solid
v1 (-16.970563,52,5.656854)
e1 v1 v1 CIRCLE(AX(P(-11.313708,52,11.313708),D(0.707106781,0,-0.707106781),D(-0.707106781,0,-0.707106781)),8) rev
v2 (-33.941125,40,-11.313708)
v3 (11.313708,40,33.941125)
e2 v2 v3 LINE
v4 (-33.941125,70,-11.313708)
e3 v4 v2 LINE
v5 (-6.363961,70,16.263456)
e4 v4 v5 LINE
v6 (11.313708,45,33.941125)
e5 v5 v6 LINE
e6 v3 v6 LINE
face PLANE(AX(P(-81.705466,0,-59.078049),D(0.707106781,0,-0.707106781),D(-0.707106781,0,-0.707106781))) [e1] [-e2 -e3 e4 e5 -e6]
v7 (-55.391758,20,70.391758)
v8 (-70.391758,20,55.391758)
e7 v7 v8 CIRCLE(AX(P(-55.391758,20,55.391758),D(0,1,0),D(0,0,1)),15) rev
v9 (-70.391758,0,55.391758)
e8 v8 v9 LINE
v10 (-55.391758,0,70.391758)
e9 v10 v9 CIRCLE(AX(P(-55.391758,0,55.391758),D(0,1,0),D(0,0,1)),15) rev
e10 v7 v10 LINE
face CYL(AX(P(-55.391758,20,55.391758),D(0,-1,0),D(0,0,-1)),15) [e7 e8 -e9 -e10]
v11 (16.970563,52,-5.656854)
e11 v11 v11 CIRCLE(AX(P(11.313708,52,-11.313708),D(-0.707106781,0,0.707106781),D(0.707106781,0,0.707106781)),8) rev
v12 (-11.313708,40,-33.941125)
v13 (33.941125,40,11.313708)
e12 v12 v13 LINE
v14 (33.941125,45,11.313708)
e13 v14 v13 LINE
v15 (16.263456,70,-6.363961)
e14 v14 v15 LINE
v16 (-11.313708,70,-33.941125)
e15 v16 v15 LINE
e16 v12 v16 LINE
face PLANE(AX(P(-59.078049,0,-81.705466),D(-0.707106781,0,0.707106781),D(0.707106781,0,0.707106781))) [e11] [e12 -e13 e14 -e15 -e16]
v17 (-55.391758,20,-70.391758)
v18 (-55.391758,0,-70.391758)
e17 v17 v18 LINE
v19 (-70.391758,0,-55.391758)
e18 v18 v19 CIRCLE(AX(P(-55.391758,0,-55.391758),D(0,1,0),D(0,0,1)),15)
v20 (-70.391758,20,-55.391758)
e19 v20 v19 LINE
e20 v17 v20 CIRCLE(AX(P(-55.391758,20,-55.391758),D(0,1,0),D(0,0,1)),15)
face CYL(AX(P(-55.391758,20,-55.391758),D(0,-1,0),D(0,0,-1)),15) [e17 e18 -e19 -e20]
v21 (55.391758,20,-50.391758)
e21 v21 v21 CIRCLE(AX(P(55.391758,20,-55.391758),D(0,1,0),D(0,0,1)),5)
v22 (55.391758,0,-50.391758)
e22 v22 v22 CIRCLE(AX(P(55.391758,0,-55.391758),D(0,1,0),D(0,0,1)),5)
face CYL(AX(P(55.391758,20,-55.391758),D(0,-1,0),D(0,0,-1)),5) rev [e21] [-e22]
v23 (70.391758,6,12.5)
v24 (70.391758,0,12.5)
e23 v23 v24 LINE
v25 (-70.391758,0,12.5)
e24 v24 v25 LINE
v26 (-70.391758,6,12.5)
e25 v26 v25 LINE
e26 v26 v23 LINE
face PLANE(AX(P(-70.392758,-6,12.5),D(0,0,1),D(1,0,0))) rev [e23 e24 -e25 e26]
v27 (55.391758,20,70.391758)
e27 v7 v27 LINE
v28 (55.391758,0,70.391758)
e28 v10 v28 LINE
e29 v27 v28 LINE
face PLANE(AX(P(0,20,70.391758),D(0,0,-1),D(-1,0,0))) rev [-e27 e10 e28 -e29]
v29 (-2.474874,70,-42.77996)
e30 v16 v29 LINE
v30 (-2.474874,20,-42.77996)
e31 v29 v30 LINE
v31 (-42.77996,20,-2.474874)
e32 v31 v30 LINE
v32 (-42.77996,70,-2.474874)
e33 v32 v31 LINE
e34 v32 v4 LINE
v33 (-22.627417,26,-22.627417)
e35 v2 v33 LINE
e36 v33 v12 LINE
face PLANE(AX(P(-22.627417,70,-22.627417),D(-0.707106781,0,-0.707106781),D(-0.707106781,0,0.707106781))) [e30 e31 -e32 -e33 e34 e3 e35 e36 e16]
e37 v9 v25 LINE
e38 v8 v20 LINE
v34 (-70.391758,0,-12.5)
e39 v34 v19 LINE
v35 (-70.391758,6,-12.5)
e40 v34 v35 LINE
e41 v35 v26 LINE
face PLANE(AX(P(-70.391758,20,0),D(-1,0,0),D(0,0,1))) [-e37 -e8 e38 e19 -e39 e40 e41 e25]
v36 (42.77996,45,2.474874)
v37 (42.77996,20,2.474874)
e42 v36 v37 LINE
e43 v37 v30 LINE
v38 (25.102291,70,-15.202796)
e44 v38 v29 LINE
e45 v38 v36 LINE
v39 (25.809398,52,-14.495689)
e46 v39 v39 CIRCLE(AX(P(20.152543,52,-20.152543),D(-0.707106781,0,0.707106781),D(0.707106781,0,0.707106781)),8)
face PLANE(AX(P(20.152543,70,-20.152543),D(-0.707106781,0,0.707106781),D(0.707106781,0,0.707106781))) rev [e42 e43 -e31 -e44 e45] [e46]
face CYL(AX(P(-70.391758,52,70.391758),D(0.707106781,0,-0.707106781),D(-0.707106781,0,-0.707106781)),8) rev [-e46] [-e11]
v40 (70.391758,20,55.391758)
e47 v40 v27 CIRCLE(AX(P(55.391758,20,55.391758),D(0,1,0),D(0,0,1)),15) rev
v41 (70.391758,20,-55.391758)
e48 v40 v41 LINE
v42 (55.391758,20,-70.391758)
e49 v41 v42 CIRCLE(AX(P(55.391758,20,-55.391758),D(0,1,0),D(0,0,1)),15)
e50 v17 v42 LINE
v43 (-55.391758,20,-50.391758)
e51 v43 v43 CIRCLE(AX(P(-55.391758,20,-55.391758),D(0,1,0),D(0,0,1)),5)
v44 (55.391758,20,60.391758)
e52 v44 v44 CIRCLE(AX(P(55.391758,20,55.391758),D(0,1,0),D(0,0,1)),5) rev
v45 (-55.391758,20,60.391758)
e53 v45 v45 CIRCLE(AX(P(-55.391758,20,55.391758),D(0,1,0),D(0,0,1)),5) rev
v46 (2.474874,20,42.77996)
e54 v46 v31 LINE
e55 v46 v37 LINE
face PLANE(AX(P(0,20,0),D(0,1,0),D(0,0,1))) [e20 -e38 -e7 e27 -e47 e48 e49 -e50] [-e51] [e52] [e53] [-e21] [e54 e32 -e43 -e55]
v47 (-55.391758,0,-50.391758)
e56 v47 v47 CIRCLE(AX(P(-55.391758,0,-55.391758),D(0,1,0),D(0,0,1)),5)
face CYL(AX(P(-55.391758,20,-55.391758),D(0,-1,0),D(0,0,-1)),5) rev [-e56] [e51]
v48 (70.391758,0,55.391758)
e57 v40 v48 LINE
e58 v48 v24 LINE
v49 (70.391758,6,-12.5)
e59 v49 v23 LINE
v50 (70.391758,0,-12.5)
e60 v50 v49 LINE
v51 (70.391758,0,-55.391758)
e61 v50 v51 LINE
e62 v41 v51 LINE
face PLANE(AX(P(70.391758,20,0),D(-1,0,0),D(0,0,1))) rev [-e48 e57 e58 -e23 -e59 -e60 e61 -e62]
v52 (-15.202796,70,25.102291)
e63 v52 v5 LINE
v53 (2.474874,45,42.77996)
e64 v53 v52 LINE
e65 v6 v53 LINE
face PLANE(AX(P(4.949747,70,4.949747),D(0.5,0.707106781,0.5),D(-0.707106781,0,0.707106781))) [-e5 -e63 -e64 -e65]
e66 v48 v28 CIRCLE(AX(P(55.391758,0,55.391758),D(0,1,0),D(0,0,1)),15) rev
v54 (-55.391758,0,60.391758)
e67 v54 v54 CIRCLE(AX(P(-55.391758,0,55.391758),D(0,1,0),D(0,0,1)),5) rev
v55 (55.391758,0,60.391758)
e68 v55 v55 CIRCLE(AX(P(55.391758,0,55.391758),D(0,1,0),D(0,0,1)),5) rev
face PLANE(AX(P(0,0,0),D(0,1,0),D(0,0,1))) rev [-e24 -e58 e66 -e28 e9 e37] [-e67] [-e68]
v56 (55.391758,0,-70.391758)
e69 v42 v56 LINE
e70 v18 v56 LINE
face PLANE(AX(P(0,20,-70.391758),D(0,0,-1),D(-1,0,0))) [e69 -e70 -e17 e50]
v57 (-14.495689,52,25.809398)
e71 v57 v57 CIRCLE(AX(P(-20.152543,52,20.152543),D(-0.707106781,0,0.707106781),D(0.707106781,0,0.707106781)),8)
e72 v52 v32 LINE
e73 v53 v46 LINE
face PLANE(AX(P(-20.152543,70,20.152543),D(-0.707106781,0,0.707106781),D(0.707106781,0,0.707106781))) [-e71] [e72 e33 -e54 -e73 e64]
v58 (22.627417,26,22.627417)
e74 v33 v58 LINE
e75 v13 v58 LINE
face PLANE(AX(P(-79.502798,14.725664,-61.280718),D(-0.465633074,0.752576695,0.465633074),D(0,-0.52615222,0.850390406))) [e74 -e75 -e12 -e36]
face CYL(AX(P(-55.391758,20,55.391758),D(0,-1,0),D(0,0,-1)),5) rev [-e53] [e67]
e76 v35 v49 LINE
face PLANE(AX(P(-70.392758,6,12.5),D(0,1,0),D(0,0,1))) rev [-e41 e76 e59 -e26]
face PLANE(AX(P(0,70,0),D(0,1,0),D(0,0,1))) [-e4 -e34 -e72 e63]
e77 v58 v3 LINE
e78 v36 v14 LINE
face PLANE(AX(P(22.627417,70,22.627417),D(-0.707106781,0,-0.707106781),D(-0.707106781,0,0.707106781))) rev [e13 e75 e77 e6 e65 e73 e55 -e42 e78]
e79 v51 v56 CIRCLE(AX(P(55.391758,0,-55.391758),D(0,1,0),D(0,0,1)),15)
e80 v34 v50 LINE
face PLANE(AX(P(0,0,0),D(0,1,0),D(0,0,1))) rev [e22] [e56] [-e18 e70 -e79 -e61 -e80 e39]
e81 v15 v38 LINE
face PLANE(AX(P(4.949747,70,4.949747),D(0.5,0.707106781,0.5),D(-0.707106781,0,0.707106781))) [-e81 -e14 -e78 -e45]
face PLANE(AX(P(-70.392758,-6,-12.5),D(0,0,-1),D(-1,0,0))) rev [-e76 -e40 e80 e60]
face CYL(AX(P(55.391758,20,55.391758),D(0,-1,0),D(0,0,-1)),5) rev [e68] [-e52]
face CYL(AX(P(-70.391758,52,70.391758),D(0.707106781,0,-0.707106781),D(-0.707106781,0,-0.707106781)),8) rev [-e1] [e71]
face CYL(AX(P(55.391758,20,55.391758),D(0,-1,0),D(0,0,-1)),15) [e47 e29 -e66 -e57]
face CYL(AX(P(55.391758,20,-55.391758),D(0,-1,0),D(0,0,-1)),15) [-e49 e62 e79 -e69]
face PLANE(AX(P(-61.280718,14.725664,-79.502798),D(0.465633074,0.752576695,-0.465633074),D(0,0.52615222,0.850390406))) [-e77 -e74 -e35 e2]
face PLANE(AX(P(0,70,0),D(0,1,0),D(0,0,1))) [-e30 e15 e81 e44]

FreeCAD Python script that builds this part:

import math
import FreeCAD as App
import Part
import Sketcher
from FreeCAD import Vector
Q = App.Units.Quantity


def edges_at(feature, points):
    """Names of the edges that pass closest to the given points."""
    edges = feature.Shape.Edges
    near = lambda p: min(range(len(edges)), key=lambda i: edges[i].distToShape(Part.Vertex(*p))[0])
    return sorted({f"Edge{near(p) + 1}" for p in points})

doc = App.newDocument("Part")
body = doc.addObject("PartDesign::Body", "Body")

sketch1 = body.newObject("Sketcher::SketchObject", "Sketch")
sketch1.AttachmentSupport = (doc.getObject("XZ_Plane"), [""])
sketch1.MapMode = "FlatFace"
sketch1.addGeometry([
    Part.ArcOfCircle(Part.Circle(Vector(-55, 55, 0), Vector(0, 0, 1), 15), math.radians(90), math.radians(180)),
    Part.LineSegment(Vector(-55, 70, 0), Vector(55, 70, 0)),
    Part.ArcOfCircle(Part.Circle(Vector(55, 55, 0), Vector(0, 0, 1), 15), math.radians(0), math.radians(90)),
    Part.LineSegment(Vector(70, 55, 0), Vector(70, -55, 0)),
    Part.ArcOfCircle(Part.Circle(Vector(55, -55, 0), Vector(0, 0, 1), 15), math.radians(-90), math.radians(0)),
    Part.LineSegment(Vector(55, -70, 0), Vector(-55, -70, 0)),
    Part.ArcOfCircle(Part.Circle(Vector(-55, -55, 0), Vector(0, 0, 1), 15), math.radians(180), math.radians(270)),
    Part.LineSegment(Vector(-70, -55, 0), Vector(-70, 55, 0)),
    Part.Circle(Vector(-55, 55, 0), Vector(0, 0, 1), 5),
    Part.Circle(Vector(55, 55, 0), Vector(0, 0, 1), 5),
    Part.Circle(Vector(-55, -55, 0), Vector(0, 0, 1), 5),
    Part.LineSegment(Vector(-2, -43, 0), Vector(43, 2, 0)),
    Part.LineSegment(Vector(43, 2, 0), Vector(2, 43, 0)),
    Part.LineSegment(Vector(2, 43, 0), Vector(-43, -2, 0)),
    Part.LineSegment(Vector(-43, -2, 0), Vector(-2, -43, 0)),
    Part.Circle(Vector(55, -55, 0), Vector(0, 0, 1), 5),
], False)
sketch1.addConstraint([
    Sketcher.Constraint("Tangent", 0, 1, 1, 1),
    Sketcher.Constraint("Tangent", 1, 2, 2, 2),
    Sketcher.Constraint("Tangent", 2, 1, 3, 1),
    Sketcher.Constraint("Tangent", 3, 2, 4, 2),
    Sketcher.Constraint("Tangent", 4, 1, 5, 1),
    Sketcher.Constraint("Tangent", 5, 2, 6, 2),
    Sketcher.Constraint("Tangent", 6, 1, 7, 1),
    Sketcher.Constraint("Tangent", 7, 2, 0, 2),
    Sketcher.Constraint("Coincident", 11, 2, 12, 1),
    Sketcher.Constraint("Coincident", 12, 2, 13, 1),
    Sketcher.Constraint("Coincident", 13, 2, 14, 1),
    Sketcher.Constraint("Coincident", 14, 2, 11, 1),
    Sketcher.Constraint("Horizontal", 1),
    Sketcher.Constraint("Vertical", 3),
    Sketcher.Constraint("Horizontal", 5),
    Sketcher.Constraint("Vertical", 7),
    Sketcher.Constraint("Coincident", 8, 3, 0, 3),
    Sketcher.Constraint("Coincident", 9, 3, 2, 3),
    Sketcher.Constraint("Coincident", 10, 3, 6, 3),
    Sketcher.Constraint("Coincident", 15, 3, 4, 3),
    Sketcher.Constraint("Equal", 0, 2),
    Sketcher.Constraint("Equal", 2, 4),
    Sketcher.Constraint("Equal", 4, 6),
    Sketcher.Constraint("Equal", 8, 9),
    Sketcher.Constraint("Equal", 9, 10),
    Sketcher.Constraint("Equal", 10, 15),
    Sketcher.Constraint("Symmetric", 0, 3, 4, 3, -1, 1),
    Sketcher.Constraint("Symmetric", 11, 2, 13, 2, -1, 1),
    Sketcher.Constraint("Symmetric", 12, 2, 14, 2, -1, 1),
    Sketcher.Constraint("Perpendicular", 11, 12),
    Sketcher.Constraint("Equal", 5, 3),
    Sketcher.Constraint("Diameter", 8, 10.0),
    Sketcher.Constraint("Radius", 0, 15.0),
    Sketcher.Constraint("Angle", 11, Q("45 deg")),
    Sketcher.Constraint("Distance", 11, 64.0),
    Sketcher.Constraint("Distance", 12, 57.0),
    Sketcher.Constraint("DistanceX", 1, 1, 1, 2, 110.783516),
])
pad1 = body.newObject("PartDesign::Pad", "Pad")
pad1.Profile = sketch1
pad1.Length = 20
pad1.Reversed = True

sketch2 = body.newObject("Sketcher::SketchObject", "Sketch001")
sketch2.AttachmentSupport = (doc.getObject("XZ_Plane"), [""])
sketch2.MapMode = "FlatFace"
sketch2.addGeometry([
    Part.LineSegment(Vector(-2, -43, 0), Vector(-43, -2, 0)),
    Part.LineSegment(Vector(-43, -2, 0), Vector(2, 43, 0)),
    Part.LineSegment(Vector(2, 43, 0), Vector(43, 2, 0)),
    Part.LineSegment(Vector(43, 2, 0), Vector(-2, -43, 0)),
], False)
sketch2.addConstraint([
    Sketcher.Constraint("Coincident", 0, 2, 1, 1),
    Sketcher.Constraint("Coincident", 1, 2, 2, 1),
    Sketcher.Constraint("Coincident", 2, 2, 3, 1),
    Sketcher.Constraint("Coincident", 3, 2, 0, 1),
    Sketcher.Constraint("Symmetric", 0, 2, 2, 2, -1, 1),
    Sketcher.Constraint("Symmetric", 1, 2, 3, 2, -1, 1),
    Sketcher.Constraint("Perpendicular", 0, 1),
    Sketcher.Constraint("Angle", 0, Q("135 deg")),
    Sketcher.Constraint("Distance", 0, 57.0),
    Sketcher.Constraint("Distance", 1, 64.0),
])
pad2 = body.newObject("PartDesign::Pad", "Pad001")
pad2.Profile = sketch2
pad2.Length = 70
pad2.Reversed = True

sketch3 = body.newObject("Sketcher::SketchObject", "Sketch002")
sketch3.Placement = App.Placement(Vector(20.152543, 0, -20.152543), App.Rotation(Vector(-0.707106781, 0, -0.707106781), Vector(0, 0.999999999, 0), Vector(0.707106781, 0, -0.707106781), "ZXY"))
sketch3.addGeometry(Part.Circle(Vector(0, 52, 0), Vector(0, 0, 1), 8), False)
sketch3.addConstraint([
    Sketcher.Constraint("PointOnObject", 0, 3, -2),
    Sketcher.Constraint("Diameter", 0, 16.0),
    Sketcher.Constraint("DistanceY", -1, 1, 0, 3, 52.0),
])
pocket1 = body.newObject("PartDesign::Pocket", "Pocket")
pocket1.Profile = sketch3
pocket1.Type = "ThroughAll"
pocket1.Midplane = True

sketch4 = body.newObject("Sketcher::SketchObject", "Sketch003")
sketch4.Placement = App.Placement(Vector(22.627417, 0, 22.627417), App.Rotation(Vector(0.707106781, 0, -0.707106781), Vector(0, 0.999999999, 0), Vector(0.707106781, 0, 0.707106781), "ZXY"))
sketch4.addGeometry([
    Part.LineSegment(Vector(16, 40, 0), Vector(16, 70, 0)),
    Part.LineSegment(Vector(16, 70, 0), Vector(-16, 70, 0)),
    Part.LineSegment(Vector(-16, 70, 0), Vector(-16, 40, 0)),
    Part.LineSegment(Vector(-16, 40, 0), Vector(0, 26, 0)),
    Part.LineSegment(Vector(0, 26, 0), Vector(16, 40, 0)),
], False)
sketch4.addConstraint([
    Sketcher.Constraint("Coincident", 0, 2, 1, 1),
    Sketcher.Constraint("Coincident", 1, 2, 2, 1),
    Sketcher.Constraint("Coincident", 2, 2, 3, 1),
    Sketcher.Constraint("Coincident", 3, 2, 4, 1),
    Sketcher.Constraint("Coincident", 4, 2, 0, 1),
    Sketcher.Constraint("Vertical", 0),
    Sketcher.Constraint("Horizontal", 1),
    Sketcher.Constraint("Vertical", 2),
    Sketcher.Constraint("Symmetric", 2, 2, 4, 2, -2),
    Sketcher.Constraint("PointOnObject", 3, 2, -2),
    Sketcher.Constraint("DistanceX", 1, 2, 1, 1, 32.0),
    Sketcher.Constraint("DistanceY", 0, 1, 0, 2, 30.0),
    Sketcher.Constraint("DistanceY", -1, 1, 0, 2, 70.0),
    Sketcher.Constraint("DistanceY", -1, 1, 3, 2, 26.0),
])
pocket2 = body.newObject("PartDesign::Pocket", "Pocket001")
pocket2.Profile = sketch4
pocket2.Type = "ThroughAll"
doc.recompute()

chamfer = body.newObject("PartDesign::Chamfer", "Chamfer")
chamfer.Base = (pocket2, edges_at(pocket2, [(6.894, 70, 38.361), (38.361, 70, 6.894)]))
chamfer.Size = 25

sketch5 = body.newObject("Sketcher::SketchObject", "Sketch004")
sketch5.AttachmentSupport = (doc.getObject("YZ_Plane"), [""])
sketch5.MapMode = "FlatFace"
sketch5.AttachmentOffset = App.Placement(Vector(0, 0, 70.391758), App.Rotation())
sketch5.addGeometry([
    Part.LineSegment(Vector(6, 12, 0), Vector(-6, 12, 0)),
    Part.LineSegment(Vector(-6, 12, 0), Vector(-6, -12, 0)),
    Part.LineSegment(Vector(-6, -12, 0), Vector(6, -12, 0)),
    Part.LineSegment(Vector(6, -12, 0), Vector(6, 12, 0)),
], False)
sketch5.addConstraint([
    Sketcher.Constraint("Coincident", 0, 2, 1, 1),
    Sketcher.Constraint("Coincident", 1, 2, 2, 1),
    Sketcher.Constraint("Coincident", 2, 2, 3, 1),
    Sketcher.Constraint("Coincident", 3, 2, 0, 1),
    Sketcher.Constraint("Horizontal", 0),
    Sketcher.Constraint("Vertical", 1),
    Sketcher.Constraint("Horizontal", 2),
    Sketcher.Constraint("Vertical", 3),
    Sketcher.Constraint("Symmetric", 0, 2, 2, 2, -1, 1),
    Sketcher.Constraint("DistanceX", 0, 2, 0, 1, 12.0),
    Sketcher.Constraint("DistanceY", 1, 2, 1, 1, 25.0),
])
pocket3 = body.newObject("PartDesign::Pocket", "Pocket002")
pocket3.Profile = sketch5
pocket3.Type = "UpToFirst"

doc.recompute()
